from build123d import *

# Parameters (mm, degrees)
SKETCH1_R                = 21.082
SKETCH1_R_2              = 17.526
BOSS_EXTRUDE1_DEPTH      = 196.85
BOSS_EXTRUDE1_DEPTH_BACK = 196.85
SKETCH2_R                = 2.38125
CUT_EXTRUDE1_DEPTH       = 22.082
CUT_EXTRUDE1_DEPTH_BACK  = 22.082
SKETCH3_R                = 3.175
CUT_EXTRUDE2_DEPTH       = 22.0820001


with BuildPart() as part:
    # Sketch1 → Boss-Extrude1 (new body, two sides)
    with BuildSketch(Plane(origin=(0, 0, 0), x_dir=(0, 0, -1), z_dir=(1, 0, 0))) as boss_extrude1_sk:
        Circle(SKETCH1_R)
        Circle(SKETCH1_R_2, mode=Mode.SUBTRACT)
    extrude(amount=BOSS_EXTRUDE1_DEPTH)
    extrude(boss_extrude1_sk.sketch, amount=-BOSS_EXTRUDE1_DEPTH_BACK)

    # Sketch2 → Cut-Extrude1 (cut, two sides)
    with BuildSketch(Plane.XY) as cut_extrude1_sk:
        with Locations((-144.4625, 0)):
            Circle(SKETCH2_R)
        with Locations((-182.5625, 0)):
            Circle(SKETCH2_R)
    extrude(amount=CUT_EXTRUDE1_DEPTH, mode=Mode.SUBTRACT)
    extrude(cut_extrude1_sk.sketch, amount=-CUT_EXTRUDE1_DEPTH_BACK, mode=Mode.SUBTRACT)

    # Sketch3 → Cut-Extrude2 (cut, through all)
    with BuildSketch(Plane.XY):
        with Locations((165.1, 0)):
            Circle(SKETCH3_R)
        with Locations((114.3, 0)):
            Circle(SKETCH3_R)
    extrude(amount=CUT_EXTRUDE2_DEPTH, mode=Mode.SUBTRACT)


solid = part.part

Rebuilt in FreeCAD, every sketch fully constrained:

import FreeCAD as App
import Part
import Sketcher

V = App.Vector
Q = App.Units.Quantity

doc = App.newDocument("Part")
body = doc.addObject("PartDesign::Body", "Body")

sketch1 = doc.addObject("Sketcher::SketchObject", "Sketch")
body.addObject(sketch1)
sketch1.AttachmentSupport = (doc.YZ_Plane, [""])
sketch1.MapMode = "FlatFace"
sketch1.addGeometry([
    Part.Circle(V(0, 0, 0), V(0, 0, 1), 21.082),
    Part.Circle(V(0, 0, 0), V(0, 0, 1), 17.526),
], False)
sketch1.addConstraint([
    Sketcher.Constraint("Coincident", 0, 3, -1, 1),
    Sketcher.Constraint("Coincident", 1, 3, -1, 1),
    Sketcher.Constraint("Diameter", 0, Q("1.66 in")),
    Sketcher.Constraint("Diameter", 1, Q("1.38 in")),
])
pad1 = doc.addObject("PartDesign::Pad", "Pad")
body.addObject(pad1)
pad1.Profile = sketch1
pad1.Type = "TwoLengths"
pad1.Length = Q("7.75 in")
pad1.Length2 = Q("7.75 in")

sketch2 = doc.addObject("Sketcher::SketchObject", "Sketch001")
body.addObject(sketch2)
sketch2.AttachmentSupport = (doc.XY_Plane, [""])
sketch2.MapMode = "FlatFace"
sketch2.addGeometry([
    Part.Circle(V(-144.4625, 0, 0), V(0, 0, 1), 2.38125),
    Part.Circle(V(-182.5625, 0, 0), V(0, 0, 1), 2.38125),
], False)
sketch2.addConstraint([
    Sketcher.Constraint("Equal", 0, 1),
    Sketcher.Constraint("PointOnObject", 0, 3, -1),
    Sketcher.Constraint("PointOnObject", 1, 3, -1),
    Sketcher.Constraint("Diameter", 0, Q("0.1875 in")),
    Sketcher.Constraint("DistanceX", 1, 3, 0, 3, Q("1.5 in")),
    Sketcher.Constraint("DistanceX", 0, 3, -1, 1, Q("5.6875 in")),
])
pocket1 = doc.addObject("PartDesign::Pocket", "Pocket")
body.addObject(pocket1)
pocket1.Profile = sketch2
pocket1.Type = "ThroughAll"
pocket1.Midplane = True

sketch3 = doc.addObject("Sketcher::SketchObject", "Sketch002")
body.addObject(sketch3)
sketch3.AttachmentSupport = (doc.XY_Plane, [""])
sketch3.MapMode = "FlatFace"
sketch3.addGeometry([
    Part.Circle(V(165.1, 0, 0), V(0, 0, 1), 3.175),
    Part.Circle(V(114.3, 0, 0), V(0, 0, 1), 3.175),
], False)
sketch3.addConstraint([
    Sketcher.Constraint("Equal", 0, 1),
    Sketcher.Constraint("PointOnObject", 0, 3, -1),
    Sketcher.Constraint("PointOnObject", 1, 3, -1),
    Sketcher.Constraint("Diameter", 0, Q("0.25 in")),
    Sketcher.Constraint("DistanceX", 1, 3, 0, 3, Q("2 in")),
    Sketcher.Constraint("DistanceX", -1, 1, 0, 3, Q("6.5 in")),
])
pocket2 = doc.addObject("PartDesign::Pocket", "Pocket001")
body.addObject(pocket2)
pocket2.Profile = sketch3
pocket2.Type = "ThroughAll"
pocket2.Reversed = True

doc.recompute()
